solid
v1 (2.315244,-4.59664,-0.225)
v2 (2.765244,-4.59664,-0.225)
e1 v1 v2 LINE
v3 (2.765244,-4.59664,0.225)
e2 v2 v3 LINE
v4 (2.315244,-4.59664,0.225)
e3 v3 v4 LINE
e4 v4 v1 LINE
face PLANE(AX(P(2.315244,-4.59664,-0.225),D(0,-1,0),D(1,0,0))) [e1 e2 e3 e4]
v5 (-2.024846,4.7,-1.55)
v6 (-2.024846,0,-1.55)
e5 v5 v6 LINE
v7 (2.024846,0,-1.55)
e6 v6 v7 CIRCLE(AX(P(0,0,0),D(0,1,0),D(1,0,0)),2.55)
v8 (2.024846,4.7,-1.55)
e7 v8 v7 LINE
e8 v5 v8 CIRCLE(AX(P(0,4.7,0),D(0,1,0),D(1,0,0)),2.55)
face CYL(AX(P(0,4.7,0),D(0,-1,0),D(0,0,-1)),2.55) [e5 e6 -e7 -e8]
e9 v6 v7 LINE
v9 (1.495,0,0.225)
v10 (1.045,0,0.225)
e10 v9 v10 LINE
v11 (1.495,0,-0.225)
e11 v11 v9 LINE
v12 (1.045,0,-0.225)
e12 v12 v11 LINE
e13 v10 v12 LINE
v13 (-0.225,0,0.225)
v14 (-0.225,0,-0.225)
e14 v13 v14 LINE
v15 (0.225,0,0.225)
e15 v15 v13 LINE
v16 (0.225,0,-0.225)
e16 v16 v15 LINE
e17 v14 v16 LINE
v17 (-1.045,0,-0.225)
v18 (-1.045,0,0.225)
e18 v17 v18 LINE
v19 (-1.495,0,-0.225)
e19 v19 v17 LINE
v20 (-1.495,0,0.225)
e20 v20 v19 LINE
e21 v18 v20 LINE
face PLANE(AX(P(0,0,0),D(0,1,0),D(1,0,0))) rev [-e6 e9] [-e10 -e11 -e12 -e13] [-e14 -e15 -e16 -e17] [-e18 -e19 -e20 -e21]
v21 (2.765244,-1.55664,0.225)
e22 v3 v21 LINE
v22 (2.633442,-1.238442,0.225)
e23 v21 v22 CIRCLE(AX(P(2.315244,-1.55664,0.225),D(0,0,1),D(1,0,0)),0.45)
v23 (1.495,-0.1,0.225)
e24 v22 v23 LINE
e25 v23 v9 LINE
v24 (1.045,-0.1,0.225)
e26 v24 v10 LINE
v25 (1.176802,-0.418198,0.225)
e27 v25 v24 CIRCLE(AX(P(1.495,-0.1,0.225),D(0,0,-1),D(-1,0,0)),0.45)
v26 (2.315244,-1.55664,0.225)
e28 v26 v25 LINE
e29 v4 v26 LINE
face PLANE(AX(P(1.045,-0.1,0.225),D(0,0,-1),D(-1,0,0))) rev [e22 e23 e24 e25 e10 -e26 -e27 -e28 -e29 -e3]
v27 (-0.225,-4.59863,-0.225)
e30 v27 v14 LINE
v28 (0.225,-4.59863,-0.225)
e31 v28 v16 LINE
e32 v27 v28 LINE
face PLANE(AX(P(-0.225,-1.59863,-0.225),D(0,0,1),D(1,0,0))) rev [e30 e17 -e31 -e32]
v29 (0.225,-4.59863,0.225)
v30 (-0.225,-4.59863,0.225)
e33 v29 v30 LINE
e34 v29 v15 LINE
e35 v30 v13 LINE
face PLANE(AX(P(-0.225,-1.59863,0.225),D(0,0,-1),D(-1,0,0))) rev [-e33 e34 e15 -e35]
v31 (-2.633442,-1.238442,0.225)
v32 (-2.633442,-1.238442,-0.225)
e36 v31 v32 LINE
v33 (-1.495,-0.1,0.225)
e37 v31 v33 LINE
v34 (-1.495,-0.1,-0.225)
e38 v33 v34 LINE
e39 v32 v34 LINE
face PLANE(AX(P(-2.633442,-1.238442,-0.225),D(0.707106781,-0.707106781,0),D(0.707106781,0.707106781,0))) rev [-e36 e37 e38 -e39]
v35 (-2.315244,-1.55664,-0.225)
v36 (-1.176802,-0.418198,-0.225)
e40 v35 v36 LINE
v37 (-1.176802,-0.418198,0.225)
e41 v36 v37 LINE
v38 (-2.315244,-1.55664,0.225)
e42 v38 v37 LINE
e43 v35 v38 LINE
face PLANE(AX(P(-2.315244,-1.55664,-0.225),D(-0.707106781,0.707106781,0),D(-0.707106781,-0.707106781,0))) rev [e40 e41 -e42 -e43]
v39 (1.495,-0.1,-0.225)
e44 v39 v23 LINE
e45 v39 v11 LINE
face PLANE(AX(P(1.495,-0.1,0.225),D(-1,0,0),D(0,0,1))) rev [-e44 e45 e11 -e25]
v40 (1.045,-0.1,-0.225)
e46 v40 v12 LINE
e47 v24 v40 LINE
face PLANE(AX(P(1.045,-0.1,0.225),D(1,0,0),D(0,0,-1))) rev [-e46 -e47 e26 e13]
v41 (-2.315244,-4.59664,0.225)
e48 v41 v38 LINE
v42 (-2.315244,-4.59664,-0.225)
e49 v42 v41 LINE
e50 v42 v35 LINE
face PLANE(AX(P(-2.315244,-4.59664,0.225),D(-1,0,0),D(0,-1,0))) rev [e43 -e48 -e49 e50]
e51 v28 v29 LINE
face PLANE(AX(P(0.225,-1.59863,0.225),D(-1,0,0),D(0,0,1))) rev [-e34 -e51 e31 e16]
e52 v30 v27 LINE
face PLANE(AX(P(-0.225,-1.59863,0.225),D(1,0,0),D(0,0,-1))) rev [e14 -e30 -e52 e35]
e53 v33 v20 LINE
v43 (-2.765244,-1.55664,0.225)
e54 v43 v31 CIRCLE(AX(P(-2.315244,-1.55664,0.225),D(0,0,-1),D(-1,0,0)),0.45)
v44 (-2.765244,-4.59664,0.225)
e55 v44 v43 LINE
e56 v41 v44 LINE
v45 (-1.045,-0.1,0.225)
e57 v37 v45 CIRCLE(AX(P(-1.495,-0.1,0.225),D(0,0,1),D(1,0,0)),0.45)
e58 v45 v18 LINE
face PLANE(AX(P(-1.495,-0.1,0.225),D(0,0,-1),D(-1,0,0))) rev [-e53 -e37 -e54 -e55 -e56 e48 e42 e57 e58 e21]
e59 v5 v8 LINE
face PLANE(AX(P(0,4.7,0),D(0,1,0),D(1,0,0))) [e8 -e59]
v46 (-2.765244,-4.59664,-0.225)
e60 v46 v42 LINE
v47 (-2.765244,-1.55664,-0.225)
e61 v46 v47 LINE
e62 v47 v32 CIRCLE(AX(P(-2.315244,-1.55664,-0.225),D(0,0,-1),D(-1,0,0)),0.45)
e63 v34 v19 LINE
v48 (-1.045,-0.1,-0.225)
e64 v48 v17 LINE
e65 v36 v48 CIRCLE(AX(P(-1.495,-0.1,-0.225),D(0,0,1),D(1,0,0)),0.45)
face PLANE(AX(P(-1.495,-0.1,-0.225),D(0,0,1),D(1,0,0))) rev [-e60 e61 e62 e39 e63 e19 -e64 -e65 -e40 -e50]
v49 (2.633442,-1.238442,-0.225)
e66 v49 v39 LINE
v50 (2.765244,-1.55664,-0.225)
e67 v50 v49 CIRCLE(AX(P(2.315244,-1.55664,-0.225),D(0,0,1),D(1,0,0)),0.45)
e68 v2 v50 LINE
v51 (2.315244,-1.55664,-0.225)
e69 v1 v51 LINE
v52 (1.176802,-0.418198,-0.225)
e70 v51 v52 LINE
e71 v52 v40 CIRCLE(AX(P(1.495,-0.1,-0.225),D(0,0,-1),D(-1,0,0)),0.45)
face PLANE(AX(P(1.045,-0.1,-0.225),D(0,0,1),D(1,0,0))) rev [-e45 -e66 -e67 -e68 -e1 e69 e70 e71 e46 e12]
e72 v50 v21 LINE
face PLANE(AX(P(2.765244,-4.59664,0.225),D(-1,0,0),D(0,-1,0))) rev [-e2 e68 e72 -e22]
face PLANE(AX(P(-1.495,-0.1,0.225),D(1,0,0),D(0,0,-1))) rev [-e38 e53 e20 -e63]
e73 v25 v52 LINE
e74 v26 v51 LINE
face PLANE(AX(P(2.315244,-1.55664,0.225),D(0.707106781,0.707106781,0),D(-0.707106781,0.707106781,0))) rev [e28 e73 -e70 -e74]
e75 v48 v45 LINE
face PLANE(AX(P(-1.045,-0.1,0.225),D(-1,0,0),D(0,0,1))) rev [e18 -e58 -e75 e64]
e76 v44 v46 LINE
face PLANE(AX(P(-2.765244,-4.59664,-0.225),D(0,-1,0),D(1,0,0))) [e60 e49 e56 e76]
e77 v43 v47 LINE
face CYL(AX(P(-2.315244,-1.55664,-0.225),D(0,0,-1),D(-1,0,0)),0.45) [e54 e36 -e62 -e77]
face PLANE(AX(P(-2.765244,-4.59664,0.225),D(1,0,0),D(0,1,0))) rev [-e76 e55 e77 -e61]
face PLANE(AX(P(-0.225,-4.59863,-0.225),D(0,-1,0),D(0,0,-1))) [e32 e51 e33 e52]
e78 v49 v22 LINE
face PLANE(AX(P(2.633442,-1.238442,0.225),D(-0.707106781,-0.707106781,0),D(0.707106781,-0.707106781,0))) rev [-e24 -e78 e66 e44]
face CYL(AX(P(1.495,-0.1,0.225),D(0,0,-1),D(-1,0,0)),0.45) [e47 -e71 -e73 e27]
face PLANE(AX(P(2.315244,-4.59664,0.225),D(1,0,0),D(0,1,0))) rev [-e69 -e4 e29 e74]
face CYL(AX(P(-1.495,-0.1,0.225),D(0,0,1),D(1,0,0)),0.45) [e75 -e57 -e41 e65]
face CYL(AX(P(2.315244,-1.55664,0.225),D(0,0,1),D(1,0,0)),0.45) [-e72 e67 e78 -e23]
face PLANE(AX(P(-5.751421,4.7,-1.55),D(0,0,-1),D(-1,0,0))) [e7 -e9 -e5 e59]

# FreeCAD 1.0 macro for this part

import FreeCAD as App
import Part
import Sketcher
Q = App.Units.Quantity


def add_polygon(sketch, points):
    """Adds a closed chain of lines whose ends are joined by coincident constraints."""
    first, n = sketch.GeometryCount, len(points)
    for a, b in zip(points, points[1:] + points[:1]):
        sketch.addGeometry(Part.LineSegment(App.Vector(*a, 0), App.Vector(*b, 0)), False)
    for i in range(n):
        sketch.addConstraint(Sketcher.Constraint("Coincident", first + i, 2, first + (i + 1) % n, 1))

doc = App.newDocument("Part")
body = doc.addObject("PartDesign::Body", "Body")

sketch1 = body.newObject("Sketcher::SketchObject", "Sketch")
sketch1.AttachmentSupport = (doc.getObject("XZ_Plane"), [""])
sketch1.MapMode = "FlatFace"
sketch1.addGeometry(Part.Circle(App.Vector(0, 0, 0), App.Vector(0, 0, 1), 2.5), False)
sketch1.addConstraint(Sketcher.Constraint("Coincident", 0, 3, -1, 1))
sketch1.addConstraint(Sketcher.Constraint("Diameter", 0, Q("5.1 mm")))
pad1 = body.newObject("PartDesign::Pad", "Pad")
pad1.Profile = sketch1
pad1.Length = 4.7
pad1.Reversed = True

sketch2 = body.newObject("Sketcher::SketchObject", "Sketch001")
sketch2.AttachmentSupport = (doc.getObject("XZ_Plane"), [""])
sketch2.MapMode = "FlatFace"
add_polygon(sketch2, [(-24, -2), (24, -2), (24, -46), (-24, -46)])
sketch2.addConstraint(Sketcher.Constraint("Horizontal", 0))
sketch2.addConstraint(Sketcher.Constraint("Vertical", 1))
sketch2.addConstraint(Sketcher.Constraint("Horizontal", 2))
sketch2.addConstraint(Sketcher.Constraint("Vertical", 3))
sketch2.addConstraint(Sketcher.Constraint("DistanceY", 0, 2, -1, 1, Q("1.55 mm")))
sketch2.addConstraint(Sketcher.Constraint("DistanceY", 1, 2, 1, 1, Q("44.5729 mm")))
sketch2.addConstraint(Sketcher.Constraint("DistanceX", 0, 1, 0, 2, Q("48.622591 mm")))
sketch2.addConstraint(Sketcher.Constraint("DistanceX", -1, 1, 0, 2, Q("24.311296 mm")))
pocket1 = body.newObject("PartDesign::Pocket", "Pocket")
pocket1.Profile = sketch2
pocket1.Type = "ThroughAll"

sketch3 = body.newObject("Sketcher::SketchObject", "Sketch002")
sketch3.AttachmentSupport = (doc.getObject("XZ_Plane"), [""])
sketch3.MapMode = "FlatFace"
add_polygon(sketch3, [(1.04, 0.23), (1.04, -0.23), (1.5, -0.23), (1.5, 0.23)])
sketch3.addConstraint(Sketcher.Constraint("Vertical", 0))
sketch3.addConstraint(Sketcher.Constraint("Horizontal", 1))
sketch3.addConstraint(Sketcher.Constraint("Vertical", 2))
sketch3.addConstraint(Sketcher.Constraint("Horizontal", 3))
sketch3.addConstraint(Sketcher.Constraint("Equal", 3, 0))
sketch3.addConstraint(Sketcher.Constraint("DistanceX", 1, 1, 1, 2, Q("0.45 mm")))
sketch3.addConstraint(Sketcher.Constraint("DistanceX", -1, 1, 0, 2, Q("1.045 mm")))
sketch3.addConstraint(Sketcher.Constraint("DistanceY", 0, 2, -1, 1, Q("0.225 mm")))
pad2 = body.newObject("PartDesign::Pad", "Pad001")
pad2.Profile = sketch3
pad2.Length = 0.1

sketch4 = body.newObject("Sketcher::SketchObject", "Sketch003")
sketch4.AttachmentSupport = (doc.getObject("XZ_Plane"), [""])
sketch4.MapMode = "FlatFace"
add_polygon(sketch4, [(-1.5, 0.23), (-1.5, -0.23), (-1.04, -0.23), (-1.04, 0.23)])
sketch4.addConstraint(Sketcher.Constraint("Vertical", 0))
sketch4.addConstraint(Sketcher.Constraint("Horizontal", 1))
sketch4.addConstraint(Sketcher.Constraint("Vertical", 2))
sketch4.addConstraint(Sketcher.Constraint("Horizontal", 3))
sketch4.addConstraint(Sketcher.Constraint("Equal", 3, 0))
sketch4.addConstraint(Sketcher.Constraint("DistanceX", 1, 1, 1, 2, Q("0.45 mm")))
sketch4.addConstraint(Sketcher.Constraint("DistanceX", 0, 2, -1, 1, Q("1.495 mm")))
sketch4.addConstraint(Sketcher.Constraint("DistanceY", 0, 2, -1, 1, Q("0.225 mm")))
pad3 = body.newObject("PartDesign::Pad", "Pad002")
pad3.Profile = sketch4
pad3.Length = 0.1

sketch5 = body.newObject("Sketcher::SketchObject", "Sketch004")
sketch5.AttachmentSupport = (doc.getObject("XZ_Plane"), [""])
sketch5.MapMode = "FlatFace"
add_polygon(sketch5, [(-0.23, 0.23), (-0.23, -0.23), (0.23, -0.23), (0.23, 0.23)])
sketch5.addConstraint(Sketcher.Constraint("Vertical", 0))
sketch5.addConstraint(Sketcher.Constraint("Horizontal", 1))
sketch5.addConstraint(Sketcher.Constraint("Vertical", 2))
sketch5.addConstraint(Sketcher.Constraint("Horizontal", 3))
sketch5.addConstraint(Sketcher.Constraint("Symmetric", 0, 2, 2, 2, -1, 1))
sketch5.addConstraint(Sketcher.Constraint("Equal", 3, 0))
sketch5.addConstraint(Sketcher.Constraint("DistanceX", 1, 1, 1, 2, Q("0.45 mm")))
pad4 = body.newObject("PartDesign::Pad", "Pad003")
pad4.Profile = sketch5
pad4.Length = 1.59863

sketch6 = body.newObject("Sketcher::SketchObject", "Sketch005")
sketch6.AttachmentSupport = (doc.getObject("XZ_Plane"), [""])
sketch6.MapMode = "FlatFace"
sketch6.AttachmentOffset = App.Placement(App.Vector(0, 0, 0.1), App.Rotation())
add_polygon(sketch6, [(-1.5, 0.23), (-1.5, -0.23), (-1.04, -0.23), (-1.04, 0.23)])
sketch6.addGeometry(Part.LineSegment(App.Vector(-1.5, 0.23, 0), App.Vector(-1.5, -0.23, 0)), True)
sketch6.addConstraint(Sketcher.Constraint("Vertical", 0))
sketch6.addConstraint(Sketcher.Constraint("Horizontal", 1))
sketch6.addConstraint(Sketcher.Constraint("Vertical", 2))
sketch6.addConstraint(Sketcher.Constraint("Horizontal", 3))
sketch6.addConstraint(Sketcher.Constraint("Vertical", 4))
sketch6.addConstraint(Sketcher.Constraint("Coincident", 4, 1, 3, 2))
sketch6.addConstraint(Sketcher.Constraint("Horizontal", 1, 2, 4, 2))
sketch6.addConstraint(Sketcher.Constraint("Equal", 3, 0))
sketch6.addConstraint(Sketcher.Constraint("DistanceX", 1, 1, 1, 2, Q("0.45 mm")))
sketch6.addConstraint(Sketcher.Constraint("DistanceX", 0, 2, -1, 1, Q("1.495 mm")))
sketch6.addConstraint(Sketcher.Constraint("DistanceY", 0, 2, -1, 1, Q("0.225 mm")))
revolution = body.newObject("PartDesign::Revolution", "Revolution")
revolution.Profile = sketch6
revolution.ReferenceAxis = (sketch6, ["Axis0"])
revolution.Angle = 45

sketch7 = body.newObject("Sketcher::SketchObject", "Sketch006")
sketch7.Placement = App.Placement(App.Vector(-0.7975, -0.7975, 0), App.Rotation(App.Vector(0, 0, 1), App.Vector(-0.707106781, 0.707106781, 0), App.Vector(-0.707106781, -0.707106781, 0), "ZXY"))
add_polygon(sketch7, [(-0.23, 0.99), (-0.23, 0.54), (0.23, 0.54), (0.23, 0.99)])
sketch7.addConstraint(Sketcher.Constraint("Vertical", 0))
sketch7.addConstraint(Sketcher.Constraint("Horizontal", 1))
sketch7.addConstraint(Sketcher.Constraint("Vertical", 2))
sketch7.addConstraint(Sketcher.Constraint("Horizontal", 3))
sketch7.addConstraint(Sketcher.Constraint("Equal", 3, 0))
sketch7.addConstraint(Sketcher.Constraint("DistanceX", 1, 1, 1, 2, Q("0.45 mm")))
sketch7.addConstraint(Sketcher.Constraint("DistanceX", 0, 2, -1, 1, Q("0.225 mm")))
sketch7.addConstraint(Sketcher.Constraint("DistanceY", -1, 1, 0, 2, Q("0.536414 mm")))
pad5 = body.newObject("PartDesign::Pad", "Pad004")
pad5.Profile = sketch7
pad5.Length = 1.61

sketch8 = body.newObject("Sketcher::SketchObject", "Sketch007")
sketch8.Placement = App.Placement(App.Vector(-1.935942, -1.935942, 0), App.Rotation(App.Vector(0, 0, 1), App.Vector(-0.707106781, 0.707106781, 0), App.Vector(-0.707106781, -0.707106781, 0), "ZXY"))
add_polygon(sketch8, [(-0.23, 0.99), (-0.23, 0.54), (0.23, 0.54), (0.23, 0.99)])
sketch8.addGeometry(Part.LineSegment(App.Vector(-0.23, 0.54, 0), App.Vector(0.23, 0.54, 0)), True)
sketch8.addConstraint(Sketcher.Constraint("Vertical", 0))
sketch8.addConstraint(Sketcher.Constraint("Horizontal", 1))
sketch8.addConstraint(Sketcher.Constraint("Vertical", 2))
sketch8.addConstraint(Sketcher.Constraint("Horizontal", 3))
sketch8.addConstraint(Sketcher.Constraint("Horizontal", 4))
sketch8.addConstraint(Sketcher.Constraint("Coincident", 4, 1, 0, 2))
sketch8.addConstraint(Sketcher.Constraint("Vertical", 2, 2, 4, 2))
sketch8.addConstraint(Sketcher.Constraint("Equal", 4, 0))
sketch8.addConstraint(Sketcher.Constraint("DistanceX", 1, 1, 1, 2, Q("0.45 mm")))
sketch8.addConstraint(Sketcher.Constraint("DistanceX", 0, 2, -1, 1, Q("0.225 mm")))
sketch8.addConstraint(Sketcher.Constraint("DistanceY", -1, 1, 0, 2, Q("0.536414 mm")))
revolution2 = body.newObject("PartDesign::Revolution", "Revolution001")
revolution2.Profile = sketch8
revolution2.ReferenceAxis = (sketch8, ["Axis0"])
revolution2.Angle = 45

sketch9 = body.newObject("Sketcher::SketchObject", "Sketch008")
sketch9.AttachmentSupport = (doc.getObject("XZ_Plane"), [""])
sketch9.MapMode = "FlatFace"
sketch9.AttachmentOffset = App.Placement(App.Vector(0, 0, 1.55664), App.Rotation())
add_polygon(sketch9, [(-2.77, 0.23), (-2.77, -0.23), (-2.32, -0.23), (-2.32, 0.23)])
sketch9.addConstraint(Sketcher.Constraint("Vertical", 0))
sketch9.addConstraint(Sketcher.Constraint("Horizontal", 1))
sketch9.addConstraint(Sketcher.Constraint("Vertical", 2))
sketch9.addConstraint(Sketcher.Constraint("Horizontal", 3))
sketch9.addConstraint(Sketcher.Constraint("Equal", 3, 0))
sketch9.addConstraint(Sketcher.Constraint("DistanceX", 1, 1, 1, 2, Q("0.45 mm")))
sketch9.addConstraint(Sketcher.Constraint("DistanceY", 0, 2, -1, 1, Q("0.225 mm")))
sketch9.addConstraint(Sketcher.Constraint("DistanceX", 0, 2, -1, 1, Q("2.765244 mm")))
pad6 = body.newObject("PartDesign::Pad", "Pad005")
pad6.Profile = sketch9
pad6.Length = 3.04

sketch10 = body.newObject("Sketcher::SketchObject", "Sketch009")
sketch10.AttachmentSupport = (doc.getObject("XZ_Plane"), [""])
sketch10.MapMode = "FlatFace"
sketch10.AttachmentOffset = App.Placement(App.Vector(0, 0, 0.1), App.Rotation())
add_polygon(sketch10, [(1.04, 0.23), (1.04, -0.23), (1.5, -0.23), (1.5, 0.23)])
sketch10.addGeometry(Part.LineSegment(App.Vector(1.5, -0.23, 0), App.Vector(1.5, 0.23, 0)), True)
sketch10.addConstraint(Sketcher.Constraint("Vertical", 0))
sketch10.addConstraint(Sketcher.Constraint("Horizontal", 1))
sketch10.addConstraint(Sketcher.Constraint("Vertical", 2))
sketch10.addConstraint(Sketcher.Constraint("Horizontal", 3))
sketch10.addConstraint(Sketcher.Constraint("Vertical", 4))
sketch10.addConstraint(Sketcher.Constraint("Coincident", 4, 1, 1, 2))
sketch10.addConstraint(Sketcher.Constraint("Horizontal", 3, 2, 4, 2))
sketch10.addConstraint(Sketcher.Constraint("Equal", 3, 0))
sketch10.addConstraint(Sketcher.Constraint("DistanceX", 1, 1, 1, 2, Q("0.45 mm")))
sketch10.addConstraint(Sketcher.Constraint("DistanceX", -1, 1, 0, 2, Q("1.045 mm")))
sketch10.addConstraint(Sketcher.Constraint("DistanceY", 0, 2, -1, 1, Q("0.225 mm")))
revolution3 = body.newObject("PartDesign::Revolution", "Revolution002")
revolution3.Profile = sketch10
revolution3.ReferenceAxis = (sketch10, ["Axis0"])
revolution3.Angle = 45

sketch11 = body.newObject("Sketcher::SketchObject", "Sketch010")
sketch11.Placement = App.Placement(App.Vector(0.7975, -0.7975, 0), App.Rotation(App.Vector(0, 0, -1), App.Vector(0.707106781, 0.707106781, 0), App.Vector(0.707106781, -0.707106781, 0), "ZXY"))
add_polygon(sketch11, [(-0.23, 0.99), (-0.23, 0.54), (0.23, 0.54), (0.23, 0.99)])
sketch11.addConstraint(Sketcher.Constraint("Vertical", 0))
sketch11.addConstraint(Sketcher.Constraint("Horizontal", 1))
sketch11.addConstraint(Sketcher.Constraint("Vertical", 2))
sketch11.addConstraint(Sketcher.Constraint("Horizontal", 3))
sketch11.addConstraint(Sketcher.Constraint("Equal", 3, 0))
sketch11.addConstraint(Sketcher.Constraint("DistanceX", 1, 1, 1, 2, Q("0.45 mm")))
sketch11.addConstraint(Sketcher.Constraint("DistanceX", 0, 2, -1, 1, Q("0.225 mm")))
sketch11.addConstraint(Sketcher.Constraint("DistanceY", -1, 1, 0, 2, Q("0.536414 mm")))
pad7 = body.newObject("PartDesign::Pad", "Pad006")
pad7.Profile = sketch11
pad7.Length = 1.61

sketch12 = body.newObject("Sketcher::SketchObject", "Sketch011")
sketch12.Placement = App.Placement(App.Vector(1.935942, -1.935942, 0), App.Rotation(App.Vector(0, 0, -1), App.Vector(0.707106781, 0.707106781, 0), App.Vector(0.707106781, -0.707106781, 0), "ZXY"))
add_polygon(sketch12, [(-0.23, 0.99), (-0.23, 0.54), (0.23, 0.54), (0.23, 0.99)])
sketch12.addGeometry(Part.LineSegment(App.Vector(-0.23, 0.54, 0), App.Vector(0.23, 0.54, 0)), True)
sketch12.addConstraint(Sketcher.Constraint("Vertical", 0))
sketch12.addConstraint(Sketcher.Constraint("Horizontal", 1))
sketch12.addConstraint(Sketcher.Constraint("Vertical", 2))
sketch12.addConstraint(Sketcher.Constraint("Horizontal", 3))
sketch12.addConstraint(Sketcher.Constraint("Horizontal", 4))
sketch12.addConstraint(Sketcher.Constraint("Coincident", 4, 1, 0, 2))
sketch12.addConstraint(Sketcher.Constraint("Vertical", 2, 2, 4, 2))
sketch12.addConstraint(Sketcher.Constraint("Equal", 4, 0))
sketch12.addConstraint(Sketcher.Constraint("DistanceX", 1, 1, 1, 2, Q("0.45 mm")))
sketch12.addConstraint(Sketcher.Constraint("DistanceX", 0, 2, -1, 1, Q("0.225 mm")))
sketch12.addConstraint(Sketcher.Constraint("DistanceY", -1, 1, 0, 2, Q("0.536414 mm")))
revolution4 = body.newObject("PartDesign::Revolution", "Revolution003")
revolution4.Profile = sketch12
revolution4.ReferenceAxis = (sketch12, ["Axis0"])
revolution4.Angle = 45

sketch13 = body.newObject("Sketcher::SketchObject", "Sketch012")
sketch13.AttachmentSupport = (doc.getObject("XZ_Plane"), [""])
sketch13.MapMode = "FlatFace"
sketch13.AttachmentOffset = App.Placement(App.Vector(0, 0, 1.55664), App.Rotation())
add_polygon(sketch13, [(2.32, 0.23), (2.32, -0.23), (2.77, -0.23), (2.77, 0.23)])
sketch13.addConstraint(Sketcher.Constraint("Vertical", 0))
sketch13.addConstraint(Sketcher.Constraint("Horizontal", 1))
sketch13.addConstraint(Sketcher.Constraint("Vertical", 2))
sketch13.addConstraint(Sketcher.Constraint("Horizontal", 3))
sketch13.addConstraint(Sketcher.Constraint("Equal", 3, 0))
sketch13.addConstraint(Sketcher.Constraint("DistanceX", 1, 1, 1, 2, Q("0.45 mm")))
sketch13.addConstraint(Sketcher.Constraint("DistanceY", 0, 2, -1, 1, Q("0.225 mm")))
sketch13.addConstraint(Sketcher.Constraint("DistanceX", -1, 1, 0, 2, Q("2.315244 mm")))
pad8 = body.newObject("PartDesign::Pad", "Pad007")
pad8.Profile = sketch13
pad8.Length = 3.04

sketch14 = body.newObject("Sketcher::SketchObject", "Sketch013")
sketch14.AttachmentSupport = (doc.getObject("XZ_Plane"), [""])
sketch14.MapMode = "FlatFace"
sketch14.AttachmentOffset = App.Placement(App.Vector(0, 0, 1.59863), App.Rotation())
add_polygon(sketch14, [(-0.23, 0.23), (-0.23, -0.23), (0.23, -0.23), (0.23, 0.23)])
sketch14.addConstraint(Sketcher.Constraint("Vertical", 0))
sketch14.addConstraint(Sketcher.Constraint("Horizontal", 1))
sketch14.addConstraint(Sketcher.Constraint("Vertical", 2))
sketch14.addConstraint(Sketcher.Constraint("Horizontal", 3))
sketch14.addConstraint(Sketcher.Constraint("Symmetric", 0, 2, 2, 2, -1, 1))
sketch14.addConstraint(Sketcher.Constraint("Equal", 3, 0))
sketch14.addConstraint(Sketcher.Constraint("DistanceX", 1, 1, 1, 2, Q("0.45 mm")))
pad9 = body.newObject("PartDesign::Pad", "Pad008")
pad9.Profile = sketch14
pad9.Length = 3

doc.recompute()
